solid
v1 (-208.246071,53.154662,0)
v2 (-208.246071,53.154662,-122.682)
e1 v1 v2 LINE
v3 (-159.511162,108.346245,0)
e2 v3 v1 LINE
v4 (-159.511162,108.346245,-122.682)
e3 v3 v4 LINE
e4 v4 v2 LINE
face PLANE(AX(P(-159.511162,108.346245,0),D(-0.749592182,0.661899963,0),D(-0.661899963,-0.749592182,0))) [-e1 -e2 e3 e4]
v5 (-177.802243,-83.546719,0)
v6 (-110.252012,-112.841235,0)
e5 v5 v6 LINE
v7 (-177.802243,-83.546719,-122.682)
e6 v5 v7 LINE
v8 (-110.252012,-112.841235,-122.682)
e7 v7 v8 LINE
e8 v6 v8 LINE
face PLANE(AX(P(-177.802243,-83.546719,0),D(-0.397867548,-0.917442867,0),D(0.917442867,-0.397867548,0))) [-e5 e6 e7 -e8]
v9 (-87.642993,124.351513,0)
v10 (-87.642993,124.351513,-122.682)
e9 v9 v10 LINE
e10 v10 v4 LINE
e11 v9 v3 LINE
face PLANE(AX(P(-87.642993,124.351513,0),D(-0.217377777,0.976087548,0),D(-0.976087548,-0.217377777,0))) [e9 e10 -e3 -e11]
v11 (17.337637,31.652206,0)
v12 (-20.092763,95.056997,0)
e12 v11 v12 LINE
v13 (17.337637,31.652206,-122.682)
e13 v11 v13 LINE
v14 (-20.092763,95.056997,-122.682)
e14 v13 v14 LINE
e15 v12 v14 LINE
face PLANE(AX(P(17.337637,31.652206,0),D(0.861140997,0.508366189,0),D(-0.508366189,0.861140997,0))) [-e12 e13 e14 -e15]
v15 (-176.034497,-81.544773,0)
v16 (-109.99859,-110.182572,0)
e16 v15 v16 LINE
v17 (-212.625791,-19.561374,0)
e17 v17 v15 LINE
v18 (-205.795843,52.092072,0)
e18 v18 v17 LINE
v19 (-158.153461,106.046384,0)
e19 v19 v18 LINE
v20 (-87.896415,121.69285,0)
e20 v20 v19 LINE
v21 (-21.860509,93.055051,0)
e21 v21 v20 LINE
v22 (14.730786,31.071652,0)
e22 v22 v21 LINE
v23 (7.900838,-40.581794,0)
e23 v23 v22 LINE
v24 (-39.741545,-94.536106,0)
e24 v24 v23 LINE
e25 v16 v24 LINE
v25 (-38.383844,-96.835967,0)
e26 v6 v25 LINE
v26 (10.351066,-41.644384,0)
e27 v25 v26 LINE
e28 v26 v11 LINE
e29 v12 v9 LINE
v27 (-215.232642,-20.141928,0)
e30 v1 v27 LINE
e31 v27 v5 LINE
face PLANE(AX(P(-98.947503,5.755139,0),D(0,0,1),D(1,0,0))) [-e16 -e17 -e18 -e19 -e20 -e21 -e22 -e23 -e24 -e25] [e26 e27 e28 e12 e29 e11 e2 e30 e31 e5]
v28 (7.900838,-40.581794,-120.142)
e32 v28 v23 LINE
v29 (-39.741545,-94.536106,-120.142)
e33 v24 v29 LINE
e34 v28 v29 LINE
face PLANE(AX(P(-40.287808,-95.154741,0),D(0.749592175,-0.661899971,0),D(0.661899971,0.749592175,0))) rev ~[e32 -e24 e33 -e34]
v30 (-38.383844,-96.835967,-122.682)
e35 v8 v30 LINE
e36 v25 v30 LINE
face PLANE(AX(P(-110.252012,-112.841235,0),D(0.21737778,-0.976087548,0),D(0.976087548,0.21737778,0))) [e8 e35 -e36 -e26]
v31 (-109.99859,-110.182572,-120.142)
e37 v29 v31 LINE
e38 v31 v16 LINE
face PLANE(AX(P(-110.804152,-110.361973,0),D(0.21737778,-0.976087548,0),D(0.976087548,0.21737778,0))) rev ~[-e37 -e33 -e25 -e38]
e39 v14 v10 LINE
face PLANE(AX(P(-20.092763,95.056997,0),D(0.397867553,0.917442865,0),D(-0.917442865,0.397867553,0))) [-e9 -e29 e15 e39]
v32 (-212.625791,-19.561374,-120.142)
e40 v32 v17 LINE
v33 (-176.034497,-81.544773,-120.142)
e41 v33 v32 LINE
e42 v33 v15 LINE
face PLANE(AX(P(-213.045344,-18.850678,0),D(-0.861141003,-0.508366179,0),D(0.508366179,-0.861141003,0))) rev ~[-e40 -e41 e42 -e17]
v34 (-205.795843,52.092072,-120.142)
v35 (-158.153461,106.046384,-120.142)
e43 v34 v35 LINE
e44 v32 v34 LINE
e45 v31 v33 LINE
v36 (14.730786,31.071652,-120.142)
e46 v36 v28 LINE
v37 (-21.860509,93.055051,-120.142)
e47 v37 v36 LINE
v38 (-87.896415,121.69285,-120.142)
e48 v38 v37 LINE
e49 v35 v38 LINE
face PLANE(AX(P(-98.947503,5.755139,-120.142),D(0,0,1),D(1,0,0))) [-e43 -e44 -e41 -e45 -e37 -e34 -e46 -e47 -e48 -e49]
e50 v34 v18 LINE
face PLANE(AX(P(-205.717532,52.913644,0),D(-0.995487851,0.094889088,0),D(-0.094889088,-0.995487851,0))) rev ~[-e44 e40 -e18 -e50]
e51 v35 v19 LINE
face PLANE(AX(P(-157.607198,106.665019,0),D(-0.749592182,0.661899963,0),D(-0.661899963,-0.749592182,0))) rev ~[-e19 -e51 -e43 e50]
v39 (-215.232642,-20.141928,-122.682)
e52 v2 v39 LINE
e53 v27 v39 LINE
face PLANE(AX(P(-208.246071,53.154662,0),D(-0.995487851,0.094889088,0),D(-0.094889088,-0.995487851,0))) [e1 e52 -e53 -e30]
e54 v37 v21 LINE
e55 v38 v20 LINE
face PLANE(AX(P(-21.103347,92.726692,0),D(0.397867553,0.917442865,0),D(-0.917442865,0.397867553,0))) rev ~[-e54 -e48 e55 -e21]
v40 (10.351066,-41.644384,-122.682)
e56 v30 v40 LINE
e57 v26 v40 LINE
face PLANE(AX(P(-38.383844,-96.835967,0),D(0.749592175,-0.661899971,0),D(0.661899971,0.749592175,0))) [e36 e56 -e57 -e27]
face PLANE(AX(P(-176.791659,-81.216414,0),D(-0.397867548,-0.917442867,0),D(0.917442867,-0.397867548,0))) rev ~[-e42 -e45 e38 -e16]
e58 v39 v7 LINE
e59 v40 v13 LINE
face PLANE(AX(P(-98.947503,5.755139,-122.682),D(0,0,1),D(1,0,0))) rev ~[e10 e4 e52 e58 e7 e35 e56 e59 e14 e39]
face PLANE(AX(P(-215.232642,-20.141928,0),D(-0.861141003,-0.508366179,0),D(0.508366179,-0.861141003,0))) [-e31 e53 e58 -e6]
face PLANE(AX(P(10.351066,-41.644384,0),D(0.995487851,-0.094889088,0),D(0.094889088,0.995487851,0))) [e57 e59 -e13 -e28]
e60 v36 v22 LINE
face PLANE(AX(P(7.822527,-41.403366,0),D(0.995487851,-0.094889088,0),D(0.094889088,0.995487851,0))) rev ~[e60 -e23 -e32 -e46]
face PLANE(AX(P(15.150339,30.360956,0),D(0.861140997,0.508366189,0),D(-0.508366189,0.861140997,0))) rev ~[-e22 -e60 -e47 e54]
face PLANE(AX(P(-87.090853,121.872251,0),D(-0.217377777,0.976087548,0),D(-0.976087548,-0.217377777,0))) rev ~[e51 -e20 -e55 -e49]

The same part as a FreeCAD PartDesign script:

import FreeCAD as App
import Part
import Sketcher
Q = App.Units.Quantity


def faces_at(feature, points):
    """Names of the faces that lie closest to the given points."""
    faces = feature.Shape.Faces
    near = lambda p: min(range(len(faces)), key=lambda i: faces[i].distToShape(Part.Vertex(*p))[0])
    return sorted({f"Face{near(p) + 1}" for p in points})

doc = App.newDocument("Part")
body = doc.addObject("PartDesign::Body", "Body")

# Sketch on XY plane
sketch1 = body.newObject("Sketcher::SketchObject", "Sketch")
sketch1.AttachmentSupport = (doc.getObject("XY_Plane"), [""])
sketch1.MapMode = "FlatFace"
sketch1.addGeometry(Part.LineSegment(App.Vector(-38.383844, -96.835967, 0), App.Vector(10.351066, -41.644384, 0)), False)
sketch1.addGeometry(Part.LineSegment(App.Vector(10.351066, -41.644384, 0), App.Vector(17.337637, 31.652206, 0)), False)
sketch1.addGeometry(Part.LineSegment(App.Vector(17.337637, 31.652206, 0), App.Vector(-20.092763, 95.056997, 0)), False)
sketch1.addGeometry(Part.LineSegment(App.Vector(-20.092763, 95.056997, 0), App.Vector(-87.642993, 124.351513, 0)), False)
sketch1.addGeometry(Part.LineSegment(App.Vector(-87.642993, 124.351513, 0), App.Vector(-159.511162, 108.346245, 0)), False)
sketch1.addGeometry(Part.LineSegment(App.Vector(-159.511162, 108.346245, 0), App.Vector(-208.246071, 53.154662, 0)), False)
sketch1.addGeometry(Part.LineSegment(App.Vector(-208.246071, 53.154662, 0), App.Vector(-215.232642, -20.141928, 0)), False)
sketch1.addGeometry(Part.LineSegment(App.Vector(-215.232642, -20.141928, 0), App.Vector(-177.802243, -83.546719, 0)), False)
sketch1.addGeometry(Part.LineSegment(App.Vector(-177.802243, -83.546719, 0), App.Vector(-110.252012, -112.841235, 0)), False)
sketch1.addGeometry(Part.LineSegment(App.Vector(-110.252012, -112.841235, 0), App.Vector(-38.383844, -96.835967, 0)), False)
sketch1.addConstraint(Sketcher.Constraint("Coincident", 0, 2, 1, 1))
sketch1.addConstraint(Sketcher.Constraint("Coincident", 1, 2, 2, 1))
sketch1.addConstraint(Sketcher.Constraint("Coincident", 2, 2, 3, 1))
sketch1.addConstraint(Sketcher.Constraint("Coincident", 3, 2, 4, 1))
sketch1.addConstraint(Sketcher.Constraint("Coincident", 4, 2, 5, 1))
sketch1.addConstraint(Sketcher.Constraint("Coincident", 5, 2, 6, 1))
sketch1.addConstraint(Sketcher.Constraint("Coincident", 6, 2, 7, 1))
sketch1.addConstraint(Sketcher.Constraint("Coincident", 7, 2, 8, 1))
sketch1.addConstraint(Sketcher.Constraint("Coincident", 8, 2, 9, 1))
sketch1.addConstraint(Sketcher.Constraint("Coincident", 9, 2, 0, 1))
sketch1.addConstraint(Sketcher.Constraint("Parallel", 0, 5))
sketch1.addConstraint(Sketcher.Constraint("Parallel", 1, 6))
sketch1.addConstraint(Sketcher.Constraint("Parallel", 2, 7))
sketch1.addConstraint(Sketcher.Constraint("Parallel", 3, 8))
sketch1.addConstraint(Sketcher.Constraint("Parallel", 4, 9))
sketch1.addConstraint(Sketcher.Constraint("Equal", 0, 1))
sketch1.addConstraint(Sketcher.Constraint("Equal", 1, 2))
sketch1.addConstraint(Sketcher.Constraint("Equal", 2, 3))
sketch1.addConstraint(Sketcher.Constraint("Equal", 3, 4))
sketch1.addConstraint(Sketcher.Constraint("Equal", 4, 5))
sketch1.addConstraint(Sketcher.Constraint("Equal", 5, 6))
sketch1.addConstraint(Sketcher.Constraint("Equal", 6, 7))
sketch1.addConstraint(Sketcher.Constraint("DistanceY", -1, 1, 4, 2, Q("4.2656002 in")))
sketch1.addConstraint(Sketcher.Constraint("DistanceX", 2, 2, 1, 2, Q("37.4304 mm")))
sketch1.addConstraint(Sketcher.Constraint("DistanceX", 4, 2, 2, 2, Q("139.418399 mm")))
sketch1.addConstraint(Sketcher.Constraint("DistanceX", 5, 2, -1, 1, Q("208.246071 mm")))
sketch1.addConstraint(Sketcher.Constraint("DistanceX", 6, 2, -1, 1, Q("215.232642 mm")))
sketch1.addConstraint(Sketcher.Constraint("DistanceY", 6, 2, -1, 1, Q("20.141928 mm")))
sketch1.addConstraint(Sketcher.Constraint("DistanceY", 7, 2, -1, 1, Q("83.546719 mm")))
sketch1.addConstraint(Sketcher.Constraint("DistanceX", 8, 2, -1, 1, Q("110.252012 mm")))
pad1 = body.newObject("PartDesign::Pad", "Pad")
pad1.Profile = sketch1
pad1.Length = Q("4.83 in")
pad1.Reversed = True
doc.recompute()

thickness = body.newObject("PartDesign::Thickness", "Thickness")
thickness.Base = (pad1, faces_at(pad1, [(-98.948, 5.755, 0)]))
thickness.Value = Q("0.1 in")
thickness.Reversed = True
thickness.Join = "Arc"

doc.recompute()
